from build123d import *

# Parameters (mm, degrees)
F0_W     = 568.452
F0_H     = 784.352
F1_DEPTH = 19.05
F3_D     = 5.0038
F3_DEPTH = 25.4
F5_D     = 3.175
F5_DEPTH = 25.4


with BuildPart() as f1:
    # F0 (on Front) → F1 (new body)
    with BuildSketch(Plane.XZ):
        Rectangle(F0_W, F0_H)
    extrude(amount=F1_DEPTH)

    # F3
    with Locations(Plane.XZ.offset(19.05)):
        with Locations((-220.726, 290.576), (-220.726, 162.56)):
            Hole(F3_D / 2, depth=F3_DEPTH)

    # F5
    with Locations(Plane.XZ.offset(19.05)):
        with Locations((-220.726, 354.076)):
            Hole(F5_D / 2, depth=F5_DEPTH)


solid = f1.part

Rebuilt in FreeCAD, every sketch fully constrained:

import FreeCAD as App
import Part
import Sketcher
from FreeCAD import Vector
Q = App.Units.Quantity


def add_polygon(sketch, points):
    """Adds a closed chain of lines whose ends are joined by coincident constraints."""
    first, n = sketch.GeometryCount, len(points)
    for a, b in zip(points, points[1:] + points[:1]):
        sketch.addGeometry(Part.LineSegment(App.Vector(*a, 0), App.Vector(*b, 0)), False)
    for i in range(n):
        sketch.addConstraint(Sketcher.Constraint("Coincident", first + i, 2, first + (i + 1) % n, 1))

doc = App.newDocument("Part")
params = doc.addObject("Spreadsheet::Sheet", "Params")
for row, (alias, value) in enumerate([
    ("sketch1_width", "22.38 in"),
    ("sketch1_height", "30.88 in"),
    ("pad1_length", "0.75 in"),
    ("sketch2_diameter", "0.197 in"),
    ("hole_diameter", "0.197 in"),
    ("hole_depth", "1 in"),
    ("sketch3_diameter", "0.125 in"),
    ("hole2_diameter", "0.125 in"),
    ("hole2_depth", "1 in"),
], start=1):
    params.set(f"A{row}", alias)
    params.set(f"B{row}", "=" + value)
    params.setAlias(f"B{row}", alias)

body = doc.addObject("PartDesign::Body", "Body")

sketch1 = body.newObject("Sketcher::SketchObject", "Sketch")
sketch1.AttachmentSupport = (doc.getObject("XZ_Plane"), [""])
sketch1.MapMode = "FlatFace"
add_polygon(sketch1, [(-284, 392), (-284, -392), (284, -392), (284, 392)])
sketch1.addConstraint(Sketcher.Constraint("Vertical", 0))
sketch1.addConstraint(Sketcher.Constraint("Horizontal", 1))
sketch1.addConstraint(Sketcher.Constraint("Vertical", 2))
sketch1.addConstraint(Sketcher.Constraint("Horizontal", 3))
sketch1.addConstraint(Sketcher.Constraint("Symmetric", 0, 2, 2, 2, -1, 1))
sketch1.addConstraint(Sketcher.Constraint("DistanceX", 1, 1, 1, 2, Q("22.38 in")))
sketch1.addConstraint(Sketcher.Constraint("DistanceY", 0, 2, 0, 1, Q("30.88 in")))
sketch1.setExpression("Constraints[9]", "Params.sketch1_width")
sketch1.setExpression("Constraints[10]", "Params.sketch1_height")
pad1 = body.newObject("PartDesign::Pad", "Pad")
pad1.Profile = sketch1
pad1.setExpression("Length", "Params.pad1_length")

sketch2 = body.newObject("Sketcher::SketchObject", "Sketch001")
sketch2.AttachmentSupport = (doc.getObject("XZ_Plane"), [""])
sketch2.MapMode = "FlatFace"
sketch2.AttachmentOffset = App.Placement(Vector(0, 0, 0.75 * 25.4), App.Rotation())
sketch2.addGeometry(Part.Circle(Vector(-220.7, 290.6, 0), Vector(0, 0, 1), 2.5), False)
sketch2.addGeometry(Part.Circle(Vector(-220.7, 162.6, 0), Vector(0, 0, 1), 2.5), False)
sketch2.addConstraint(Sketcher.Constraint("Equal", 0, 1))
sketch2.addConstraint(Sketcher.Constraint("Vertical", 0, 3, 1, 3))
sketch2.addConstraint(Sketcher.Constraint("Diameter", 0, Q("0.197 in")))
sketch2.addConstraint(Sketcher.Constraint("DistanceY", -1, 1, 1, 3, Q("6.4 in")))
sketch2.addConstraint(Sketcher.Constraint("DistanceX", 0, 3, -1, 1, Q("8.69 in")))
sketch2.addConstraint(Sketcher.Constraint("DistanceY", -1, 1, 0, 3, Q("11.44 in")))
sketch2.setExpression("Constraints[2]", "Params.sketch2_diameter")
doc.recompute()
hole = body.newObject("PartDesign::Hole", "Hole")
hole.Profile = sketch2
hole.ThreadType = "None"
hole.setExpression("Diameter", "Params.hole_diameter")
hole.DepthType = "Dimension"
hole.setExpression("Depth", "Params.hole_depth")
hole.DrillPoint = "Flat"

sketch3 = body.newObject("Sketcher::SketchObject", "Sketch002")
sketch3.AttachmentSupport = (doc.getObject("XZ_Plane"), [""])
sketch3.MapMode = "FlatFace"
sketch3.AttachmentOffset = App.Placement(Vector(0, 0, 0.75 * 25.4), App.Rotation())
sketch3.addGeometry(Part.Circle(Vector(-220.7, 354.1, 0), Vector(0, 0, 1), 1.6), False)
sketch3.addConstraint(Sketcher.Constraint("Diameter", 0, Q("0.125 in")))
sketch3.addConstraint(Sketcher.Constraint("DistanceX", 0, 3, -1, 1, Q("8.69 in")))
sketch3.addConstraint(Sketcher.Constraint("DistanceY", -1, 1, 0, 3, Q("13.94 in")))
sketch3.setExpression("Constraints[0]", "Params.sketch3_diameter")
doc.recompute()
hole2 = body.newObject("PartDesign::Hole", "Hole001")
hole2.Profile = sketch3
hole2.ThreadType = "None"
hole2.setExpression("Diameter", "Params.hole2_diameter")
hole2.DepthType = "Dimension"
hole2.setExpression("Depth", "Params.hole2_depth")
hole2.DrillPoint = "Flat"

doc.recompute()
